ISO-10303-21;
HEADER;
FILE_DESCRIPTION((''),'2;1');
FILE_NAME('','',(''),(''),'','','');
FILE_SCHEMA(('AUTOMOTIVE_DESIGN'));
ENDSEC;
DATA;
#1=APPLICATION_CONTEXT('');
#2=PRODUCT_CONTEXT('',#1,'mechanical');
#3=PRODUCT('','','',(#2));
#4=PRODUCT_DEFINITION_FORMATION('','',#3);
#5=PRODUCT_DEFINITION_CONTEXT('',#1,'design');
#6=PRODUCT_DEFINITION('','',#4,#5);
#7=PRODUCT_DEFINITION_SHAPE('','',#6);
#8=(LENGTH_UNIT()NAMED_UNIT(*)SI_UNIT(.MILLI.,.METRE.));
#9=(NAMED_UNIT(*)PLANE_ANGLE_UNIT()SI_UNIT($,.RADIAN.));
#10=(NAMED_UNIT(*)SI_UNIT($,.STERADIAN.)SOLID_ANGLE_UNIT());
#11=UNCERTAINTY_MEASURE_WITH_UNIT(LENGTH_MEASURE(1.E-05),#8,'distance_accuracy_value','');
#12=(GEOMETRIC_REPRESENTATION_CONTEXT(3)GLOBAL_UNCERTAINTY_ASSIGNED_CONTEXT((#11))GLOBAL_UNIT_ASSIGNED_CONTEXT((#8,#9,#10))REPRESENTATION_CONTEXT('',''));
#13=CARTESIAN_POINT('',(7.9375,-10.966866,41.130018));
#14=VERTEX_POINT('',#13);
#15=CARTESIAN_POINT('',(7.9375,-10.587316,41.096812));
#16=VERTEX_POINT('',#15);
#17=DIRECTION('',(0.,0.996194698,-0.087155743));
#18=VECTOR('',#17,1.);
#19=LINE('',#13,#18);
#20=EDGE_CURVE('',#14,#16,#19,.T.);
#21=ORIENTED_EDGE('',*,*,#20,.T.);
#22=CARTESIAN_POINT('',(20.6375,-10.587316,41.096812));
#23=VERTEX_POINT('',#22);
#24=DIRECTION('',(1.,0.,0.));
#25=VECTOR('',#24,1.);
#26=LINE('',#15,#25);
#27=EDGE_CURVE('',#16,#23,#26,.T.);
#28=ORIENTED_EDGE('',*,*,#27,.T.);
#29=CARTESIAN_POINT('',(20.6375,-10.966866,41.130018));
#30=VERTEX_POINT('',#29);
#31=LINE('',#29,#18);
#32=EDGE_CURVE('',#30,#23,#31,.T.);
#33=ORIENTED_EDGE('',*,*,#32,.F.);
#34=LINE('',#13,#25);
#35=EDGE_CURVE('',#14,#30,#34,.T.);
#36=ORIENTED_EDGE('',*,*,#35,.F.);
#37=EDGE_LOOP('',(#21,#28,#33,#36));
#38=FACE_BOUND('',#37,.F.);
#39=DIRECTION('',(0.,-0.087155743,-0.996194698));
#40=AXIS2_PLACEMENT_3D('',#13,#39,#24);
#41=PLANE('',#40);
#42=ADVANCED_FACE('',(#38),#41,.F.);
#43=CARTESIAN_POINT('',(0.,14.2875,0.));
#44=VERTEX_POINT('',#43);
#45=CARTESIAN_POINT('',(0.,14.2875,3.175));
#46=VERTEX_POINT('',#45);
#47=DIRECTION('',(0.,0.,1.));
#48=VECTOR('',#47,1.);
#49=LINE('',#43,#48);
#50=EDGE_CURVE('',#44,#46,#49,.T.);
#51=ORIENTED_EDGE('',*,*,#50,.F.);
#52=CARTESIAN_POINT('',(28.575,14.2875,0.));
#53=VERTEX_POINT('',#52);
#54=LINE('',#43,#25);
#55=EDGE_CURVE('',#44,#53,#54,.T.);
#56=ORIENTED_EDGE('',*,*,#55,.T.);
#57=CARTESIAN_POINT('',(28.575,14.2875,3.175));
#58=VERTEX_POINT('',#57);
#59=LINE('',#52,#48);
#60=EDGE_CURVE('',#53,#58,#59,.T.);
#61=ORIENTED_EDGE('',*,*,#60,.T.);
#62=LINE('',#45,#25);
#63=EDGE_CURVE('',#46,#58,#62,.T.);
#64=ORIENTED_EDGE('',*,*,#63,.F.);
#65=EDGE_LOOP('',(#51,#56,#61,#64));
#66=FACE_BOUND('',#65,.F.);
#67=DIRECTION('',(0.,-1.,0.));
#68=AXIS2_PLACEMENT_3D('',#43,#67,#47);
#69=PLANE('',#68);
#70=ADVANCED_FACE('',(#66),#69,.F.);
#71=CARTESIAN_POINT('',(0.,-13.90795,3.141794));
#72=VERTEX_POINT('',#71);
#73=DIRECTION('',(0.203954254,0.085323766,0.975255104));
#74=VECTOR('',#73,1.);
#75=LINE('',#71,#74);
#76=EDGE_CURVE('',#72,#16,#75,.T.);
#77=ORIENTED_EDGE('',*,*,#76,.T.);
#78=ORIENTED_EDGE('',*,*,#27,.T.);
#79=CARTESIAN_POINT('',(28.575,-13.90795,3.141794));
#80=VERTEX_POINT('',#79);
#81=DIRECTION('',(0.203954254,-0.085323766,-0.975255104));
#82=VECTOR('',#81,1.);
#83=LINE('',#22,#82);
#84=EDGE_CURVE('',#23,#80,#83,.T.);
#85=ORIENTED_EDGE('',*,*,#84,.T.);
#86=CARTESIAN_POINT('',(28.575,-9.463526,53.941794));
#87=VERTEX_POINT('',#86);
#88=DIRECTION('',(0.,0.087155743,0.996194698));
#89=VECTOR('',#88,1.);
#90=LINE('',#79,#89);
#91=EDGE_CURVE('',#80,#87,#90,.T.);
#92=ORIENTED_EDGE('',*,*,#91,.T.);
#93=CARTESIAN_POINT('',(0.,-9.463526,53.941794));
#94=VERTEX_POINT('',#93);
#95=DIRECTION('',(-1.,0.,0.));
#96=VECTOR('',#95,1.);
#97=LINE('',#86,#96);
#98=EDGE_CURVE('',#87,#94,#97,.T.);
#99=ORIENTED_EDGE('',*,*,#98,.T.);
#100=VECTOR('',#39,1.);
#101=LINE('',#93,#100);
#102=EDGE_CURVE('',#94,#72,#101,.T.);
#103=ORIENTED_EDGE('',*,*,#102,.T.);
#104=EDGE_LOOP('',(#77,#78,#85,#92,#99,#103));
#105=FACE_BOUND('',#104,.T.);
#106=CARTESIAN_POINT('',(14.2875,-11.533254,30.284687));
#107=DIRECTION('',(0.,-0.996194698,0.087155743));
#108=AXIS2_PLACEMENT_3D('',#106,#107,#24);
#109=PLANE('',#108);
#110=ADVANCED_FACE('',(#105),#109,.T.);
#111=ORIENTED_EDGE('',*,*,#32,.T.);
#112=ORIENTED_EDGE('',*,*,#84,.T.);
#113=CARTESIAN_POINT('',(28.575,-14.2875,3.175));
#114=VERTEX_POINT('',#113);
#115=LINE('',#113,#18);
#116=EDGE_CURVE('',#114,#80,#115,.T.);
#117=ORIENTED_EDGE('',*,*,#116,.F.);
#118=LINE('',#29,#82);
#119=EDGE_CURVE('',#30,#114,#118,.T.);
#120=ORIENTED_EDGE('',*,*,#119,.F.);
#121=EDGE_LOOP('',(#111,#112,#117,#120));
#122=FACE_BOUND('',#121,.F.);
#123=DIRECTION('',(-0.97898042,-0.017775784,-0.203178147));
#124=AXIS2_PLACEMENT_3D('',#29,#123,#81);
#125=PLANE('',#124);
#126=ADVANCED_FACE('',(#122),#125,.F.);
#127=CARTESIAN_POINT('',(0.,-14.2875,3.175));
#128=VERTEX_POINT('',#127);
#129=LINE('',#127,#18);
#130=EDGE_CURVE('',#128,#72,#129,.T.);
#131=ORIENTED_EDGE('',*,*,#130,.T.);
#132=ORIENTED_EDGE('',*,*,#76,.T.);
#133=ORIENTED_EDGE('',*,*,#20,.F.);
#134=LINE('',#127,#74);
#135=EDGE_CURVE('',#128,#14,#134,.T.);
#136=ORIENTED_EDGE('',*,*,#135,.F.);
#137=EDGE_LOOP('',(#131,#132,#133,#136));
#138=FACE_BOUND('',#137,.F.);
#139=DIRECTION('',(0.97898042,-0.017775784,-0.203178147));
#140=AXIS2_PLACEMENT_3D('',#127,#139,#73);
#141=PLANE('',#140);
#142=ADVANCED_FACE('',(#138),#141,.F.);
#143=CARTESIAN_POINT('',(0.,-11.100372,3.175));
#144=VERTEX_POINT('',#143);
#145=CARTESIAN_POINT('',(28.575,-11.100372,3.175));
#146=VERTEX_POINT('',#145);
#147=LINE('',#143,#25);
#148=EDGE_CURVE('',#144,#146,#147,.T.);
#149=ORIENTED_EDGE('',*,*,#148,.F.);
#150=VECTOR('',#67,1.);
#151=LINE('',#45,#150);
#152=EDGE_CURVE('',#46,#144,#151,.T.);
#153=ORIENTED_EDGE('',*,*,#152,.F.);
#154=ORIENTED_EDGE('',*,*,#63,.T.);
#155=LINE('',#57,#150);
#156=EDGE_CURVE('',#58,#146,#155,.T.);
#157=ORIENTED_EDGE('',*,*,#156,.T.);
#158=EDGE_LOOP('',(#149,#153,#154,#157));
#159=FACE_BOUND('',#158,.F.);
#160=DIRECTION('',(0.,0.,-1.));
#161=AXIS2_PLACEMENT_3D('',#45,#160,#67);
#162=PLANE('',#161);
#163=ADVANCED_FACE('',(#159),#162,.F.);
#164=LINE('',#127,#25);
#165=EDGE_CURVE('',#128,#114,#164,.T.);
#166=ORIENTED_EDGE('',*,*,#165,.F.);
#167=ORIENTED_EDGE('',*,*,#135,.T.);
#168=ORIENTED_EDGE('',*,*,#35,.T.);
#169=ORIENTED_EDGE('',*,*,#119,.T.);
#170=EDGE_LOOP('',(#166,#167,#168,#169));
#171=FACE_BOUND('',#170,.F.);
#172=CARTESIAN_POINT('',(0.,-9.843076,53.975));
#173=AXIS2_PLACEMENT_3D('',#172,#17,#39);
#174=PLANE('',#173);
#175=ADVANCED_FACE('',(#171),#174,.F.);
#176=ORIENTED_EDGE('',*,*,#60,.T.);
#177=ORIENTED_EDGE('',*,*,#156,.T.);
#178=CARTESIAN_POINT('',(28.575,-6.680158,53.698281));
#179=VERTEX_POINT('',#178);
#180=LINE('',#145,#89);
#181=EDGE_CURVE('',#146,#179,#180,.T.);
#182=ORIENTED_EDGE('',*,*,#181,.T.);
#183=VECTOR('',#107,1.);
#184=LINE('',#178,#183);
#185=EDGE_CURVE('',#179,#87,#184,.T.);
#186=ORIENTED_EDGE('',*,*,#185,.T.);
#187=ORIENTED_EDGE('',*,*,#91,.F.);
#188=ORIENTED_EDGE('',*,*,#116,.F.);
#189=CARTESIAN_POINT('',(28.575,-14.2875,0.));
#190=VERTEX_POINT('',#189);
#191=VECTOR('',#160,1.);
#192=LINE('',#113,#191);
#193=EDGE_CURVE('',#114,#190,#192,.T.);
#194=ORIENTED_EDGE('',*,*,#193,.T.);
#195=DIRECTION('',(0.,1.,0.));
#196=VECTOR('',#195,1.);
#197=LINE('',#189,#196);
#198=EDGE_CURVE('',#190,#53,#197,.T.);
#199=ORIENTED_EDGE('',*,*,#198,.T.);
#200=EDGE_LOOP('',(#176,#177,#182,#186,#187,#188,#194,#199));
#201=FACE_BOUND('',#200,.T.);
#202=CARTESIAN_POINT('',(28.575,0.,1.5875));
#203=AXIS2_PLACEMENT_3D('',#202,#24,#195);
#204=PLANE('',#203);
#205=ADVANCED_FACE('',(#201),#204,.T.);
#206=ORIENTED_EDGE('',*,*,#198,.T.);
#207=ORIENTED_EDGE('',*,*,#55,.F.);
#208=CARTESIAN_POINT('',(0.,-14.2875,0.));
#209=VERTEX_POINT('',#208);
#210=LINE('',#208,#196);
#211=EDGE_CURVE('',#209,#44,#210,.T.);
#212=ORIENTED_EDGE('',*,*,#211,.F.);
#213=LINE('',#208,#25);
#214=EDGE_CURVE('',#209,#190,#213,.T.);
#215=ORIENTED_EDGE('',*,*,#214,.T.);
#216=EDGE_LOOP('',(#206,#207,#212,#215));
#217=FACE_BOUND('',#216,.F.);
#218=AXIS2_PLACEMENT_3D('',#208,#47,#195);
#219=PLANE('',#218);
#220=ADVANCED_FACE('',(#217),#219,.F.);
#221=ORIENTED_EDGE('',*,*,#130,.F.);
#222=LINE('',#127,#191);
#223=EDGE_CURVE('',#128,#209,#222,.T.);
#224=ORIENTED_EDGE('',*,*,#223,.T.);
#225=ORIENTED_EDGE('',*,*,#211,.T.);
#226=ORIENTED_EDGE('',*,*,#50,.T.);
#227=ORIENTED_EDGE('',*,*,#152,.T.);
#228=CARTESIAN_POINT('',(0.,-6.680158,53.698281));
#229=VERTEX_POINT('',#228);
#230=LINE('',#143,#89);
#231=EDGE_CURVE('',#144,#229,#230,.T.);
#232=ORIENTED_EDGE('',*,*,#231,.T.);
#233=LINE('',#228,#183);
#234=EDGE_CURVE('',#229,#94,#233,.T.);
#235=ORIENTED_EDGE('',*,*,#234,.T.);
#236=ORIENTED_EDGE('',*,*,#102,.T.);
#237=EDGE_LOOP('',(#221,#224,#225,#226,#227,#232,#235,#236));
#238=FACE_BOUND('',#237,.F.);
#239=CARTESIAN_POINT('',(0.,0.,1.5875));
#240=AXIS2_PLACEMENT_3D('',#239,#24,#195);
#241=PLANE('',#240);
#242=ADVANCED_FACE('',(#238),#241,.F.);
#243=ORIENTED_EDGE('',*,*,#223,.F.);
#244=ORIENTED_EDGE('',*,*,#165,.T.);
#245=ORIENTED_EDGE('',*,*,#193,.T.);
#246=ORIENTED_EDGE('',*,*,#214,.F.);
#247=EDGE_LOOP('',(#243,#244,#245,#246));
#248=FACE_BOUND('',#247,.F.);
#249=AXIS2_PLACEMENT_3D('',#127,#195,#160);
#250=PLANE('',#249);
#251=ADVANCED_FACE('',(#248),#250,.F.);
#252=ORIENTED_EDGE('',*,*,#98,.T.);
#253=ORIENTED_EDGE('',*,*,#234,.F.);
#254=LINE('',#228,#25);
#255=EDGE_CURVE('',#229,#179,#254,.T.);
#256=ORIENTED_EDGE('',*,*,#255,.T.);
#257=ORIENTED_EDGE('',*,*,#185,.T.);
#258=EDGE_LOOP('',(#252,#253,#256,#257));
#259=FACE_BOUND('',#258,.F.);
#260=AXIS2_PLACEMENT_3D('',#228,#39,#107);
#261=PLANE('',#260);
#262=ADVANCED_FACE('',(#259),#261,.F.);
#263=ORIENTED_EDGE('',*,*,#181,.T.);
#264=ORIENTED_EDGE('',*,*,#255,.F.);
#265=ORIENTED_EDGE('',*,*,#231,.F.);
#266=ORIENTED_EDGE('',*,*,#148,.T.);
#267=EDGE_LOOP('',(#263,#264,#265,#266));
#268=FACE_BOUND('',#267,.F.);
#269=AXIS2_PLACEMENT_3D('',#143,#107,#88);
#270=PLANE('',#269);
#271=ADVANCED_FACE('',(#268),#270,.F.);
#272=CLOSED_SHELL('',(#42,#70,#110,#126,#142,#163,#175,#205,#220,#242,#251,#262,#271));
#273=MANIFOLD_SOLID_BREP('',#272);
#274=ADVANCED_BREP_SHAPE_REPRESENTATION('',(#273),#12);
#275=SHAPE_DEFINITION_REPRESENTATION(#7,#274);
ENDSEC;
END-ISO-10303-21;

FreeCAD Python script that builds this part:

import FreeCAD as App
import Part
import Sketcher
Q = App.Units.Quantity


def add_polygon(sketch, points):
    """Adds a closed chain of lines whose ends are joined by coincident constraints."""
    first, n = sketch.GeometryCount, len(points)
    for a, b in zip(points, points[1:] + points[:1]):
        sketch.addGeometry(Part.LineSegment(App.Vector(*a, 0), App.Vector(*b, 0)), False)
    for i in range(n):
        sketch.addConstraint(Sketcher.Constraint("Coincident", first + i, 2, first + (i + 1) % n, 1))

doc = App.newDocument("Part")
body = doc.addObject("PartDesign::Body", "Body")

# Sketch on YZ plane
sketch1 = body.newObject("Sketcher::SketchObject", "Sketch")
sketch1.AttachmentSupport = (doc.getObject("YZ_Plane"), [""])
sketch1.MapMode = "FlatFace"
add_polygon(sketch1, [(-14.2875, 3.175), (-14.2875, 0), (14.2875, 0), (14.2875, 3.175), (-11.100372, 3.175), (-6.680158, 53.698281), (-9.843076, 53.975)])  # lines 0-6
sketch1.addConstraint([
    Sketcher.Constraint("Vertical", 0),
    Sketcher.Constraint("Horizontal", 1),
    Sketcher.Constraint("Vertical", 2),
    Sketcher.Constraint("Horizontal", 3),
    Sketcher.Constraint("Symmetric", 0, 2, 1, 2, -1, 1),
    Sketcher.Constraint("Perpendicular", 4, 5),
    Sketcher.Constraint("Perpendicular", 5, 6),
    Sketcher.Constraint("Horizontal", 3, 2, 6, 2),
    Sketcher.Constraint("Angle", 4, Q("85 deg")),
    Sketcher.Constraint("DistanceY", 3, 2, 5, 2, Q("2 in")),
    Sketcher.Constraint("DistanceX", 1, 1, 1, 2, Q("1.125 in")),
    Sketcher.Constraint("DistanceY", 0, 2, 0, 1, Q("0.125 in")),
    Sketcher.Constraint("Distance", 5, Q("0.125 in")),
])
pad1 = body.newObject("PartDesign::Pad", "Pad")
pad1.Profile = sketch1
pad1.Length = Q("1.125 in")

# Sketch on an angled plane
sketch2 = body.newObject("Sketcher::SketchObject", "Sketch001")
sketch2.Placement = App.Placement(App.Vector(0, -14.454637, 1.264617), App.Rotation(App.Vector(1, 0, 0), App.Vector(0, 0.087155743, 0.996194698), App.Vector(0, -0.996194698, 0.087155743), "ZXY"))
add_polygon(sketch2, [(0, 1.91768), (7.9375, 40.01768), (20.6375, 40.01768), (28.575, 1.91768), (28.575, 52.911728), (0, 52.911728)])  # lines 0-5
sketch2.addConstraint([
    Sketcher.Constraint("Horizontal", 1),
    Sketcher.Constraint("Vertical", 3),
    Sketcher.Constraint("Horizontal", 4),
    Sketcher.Constraint("Vertical", 5),
    Sketcher.Constraint("PointOnObject", 4, 2, -2),
    Sketcher.Constraint("Horizontal", 2, 2, 5, 2),
    Sketcher.Constraint("Equal", 0, 2),
    Sketcher.Constraint("DistanceX", 1, 1, 1, 2, Q("0.5 in")),
    Sketcher.Constraint("DistanceY", 2, 2, 1, 2, Q("1.5 in")),
    Sketcher.Constraint("DistanceX", 4, 2, 4, 1, Q("1.125 in")),
    Sketcher.Constraint("DistanceY", 3, 1, 3, 2, Q("50.994048 mm")),
    Sketcher.Constraint("DistanceY", -1, 1, 0, 2, Q("40.01768 mm")),
])
pocket1 = body.newObject("PartDesign::Pocket", "Pocket")
pocket1.Profile = sketch2
pocket1.Length = Q("0.015 in")

doc.recompute()
